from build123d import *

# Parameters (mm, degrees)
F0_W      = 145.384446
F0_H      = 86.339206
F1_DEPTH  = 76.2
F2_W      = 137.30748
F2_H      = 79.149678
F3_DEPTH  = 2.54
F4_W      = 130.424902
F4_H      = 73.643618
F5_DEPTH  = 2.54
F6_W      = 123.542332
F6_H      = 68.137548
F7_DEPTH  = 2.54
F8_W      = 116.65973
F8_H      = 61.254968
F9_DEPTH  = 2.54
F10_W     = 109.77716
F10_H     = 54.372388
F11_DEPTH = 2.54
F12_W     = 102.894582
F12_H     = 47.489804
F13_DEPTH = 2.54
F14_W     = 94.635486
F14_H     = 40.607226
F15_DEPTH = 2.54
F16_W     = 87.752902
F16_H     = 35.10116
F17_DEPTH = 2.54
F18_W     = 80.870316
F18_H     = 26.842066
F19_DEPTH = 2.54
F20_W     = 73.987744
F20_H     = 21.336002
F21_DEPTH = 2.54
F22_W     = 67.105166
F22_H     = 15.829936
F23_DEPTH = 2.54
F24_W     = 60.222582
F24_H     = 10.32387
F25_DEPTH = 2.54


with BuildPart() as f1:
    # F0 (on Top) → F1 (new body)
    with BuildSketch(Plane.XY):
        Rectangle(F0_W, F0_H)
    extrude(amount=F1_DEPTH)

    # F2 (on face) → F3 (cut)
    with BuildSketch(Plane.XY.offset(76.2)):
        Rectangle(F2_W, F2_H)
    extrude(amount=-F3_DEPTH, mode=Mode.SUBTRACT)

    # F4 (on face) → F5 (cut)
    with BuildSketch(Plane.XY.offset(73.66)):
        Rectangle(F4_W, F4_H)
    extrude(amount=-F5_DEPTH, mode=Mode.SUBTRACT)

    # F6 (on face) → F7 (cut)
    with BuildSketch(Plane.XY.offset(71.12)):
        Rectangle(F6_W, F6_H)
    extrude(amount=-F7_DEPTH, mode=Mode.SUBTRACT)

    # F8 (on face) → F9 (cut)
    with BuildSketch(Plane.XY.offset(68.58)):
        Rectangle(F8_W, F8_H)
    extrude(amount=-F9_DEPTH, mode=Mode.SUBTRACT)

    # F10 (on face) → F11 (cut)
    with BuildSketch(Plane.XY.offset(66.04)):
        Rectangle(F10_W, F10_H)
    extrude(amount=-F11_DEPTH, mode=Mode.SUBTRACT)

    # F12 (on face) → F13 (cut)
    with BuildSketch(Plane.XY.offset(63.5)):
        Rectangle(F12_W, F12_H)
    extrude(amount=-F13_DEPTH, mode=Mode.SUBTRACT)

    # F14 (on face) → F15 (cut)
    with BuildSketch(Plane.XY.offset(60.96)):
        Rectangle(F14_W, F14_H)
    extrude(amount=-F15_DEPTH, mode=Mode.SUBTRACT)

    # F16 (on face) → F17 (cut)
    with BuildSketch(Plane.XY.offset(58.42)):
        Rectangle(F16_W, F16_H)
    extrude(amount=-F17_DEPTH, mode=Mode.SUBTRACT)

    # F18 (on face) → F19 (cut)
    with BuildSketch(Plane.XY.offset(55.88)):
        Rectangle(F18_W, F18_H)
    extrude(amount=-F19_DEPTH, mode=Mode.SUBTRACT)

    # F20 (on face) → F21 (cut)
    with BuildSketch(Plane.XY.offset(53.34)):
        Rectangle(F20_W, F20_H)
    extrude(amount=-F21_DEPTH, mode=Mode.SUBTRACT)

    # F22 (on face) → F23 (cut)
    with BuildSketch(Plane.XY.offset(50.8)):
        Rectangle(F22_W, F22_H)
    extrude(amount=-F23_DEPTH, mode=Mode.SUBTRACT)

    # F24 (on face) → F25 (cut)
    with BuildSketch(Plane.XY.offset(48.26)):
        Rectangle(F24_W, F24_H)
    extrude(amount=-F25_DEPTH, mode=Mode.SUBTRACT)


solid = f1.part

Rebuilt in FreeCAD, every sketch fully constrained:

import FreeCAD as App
import Part
import Sketcher
from FreeCAD import Vector
Q = App.Units.Quantity


def add_polygon(sketch, points):
    """Adds a closed chain of lines whose ends are joined by coincident constraints."""
    first, n = sketch.GeometryCount, len(points)
    for a, b in zip(points, points[1:] + points[:1]):
        sketch.addGeometry(Part.LineSegment(App.Vector(*a, 0), App.Vector(*b, 0)), False)
    for i in range(n):
        sketch.addConstraint(Sketcher.Constraint("Coincident", first + i, 2, first + (i + 1) % n, 1))

doc = App.newDocument("Part")
body = doc.addObject("PartDesign::Body", "Body")

# Sketch on XY plane
sketch1 = doc.addObject("Sketcher::SketchObject", "Sketch")
body.addObject(sketch1)
sketch1.AttachmentSupport = (doc.XY_Plane, [""])
sketch1.MapMode = "FlatFace"
add_polygon(sketch1, [(-73, 43), (-73, -43), (73, -43), (73, 43)])  # lines 0-3
sketch1.addConstraint([
    Sketcher.Constraint("Vertical", 0),
    Sketcher.Constraint("Horizontal", 1),
    Sketcher.Constraint("Vertical", 2),
    Sketcher.Constraint("Horizontal", 3),
    Sketcher.Constraint("Symmetric", 0, 2, 2, 2, -1, 1),
    Sketcher.Constraint("DistanceX", 1, 1, 1, 2, Q("145.384446 mm")),
    Sketcher.Constraint("DistanceY", 0, 2, 0, 1, Q("86.339206 mm")),
])
pad1 = doc.addObject("PartDesign::Pad", "Pad")
body.addObject(pad1)
pad1.Profile = sketch1
pad1.Length = Q("3 in")

# Sketch on XY plane
sketch2 = doc.addObject("Sketcher::SketchObject", "Sketch001")
body.addObject(sketch2)
sketch2.AttachmentSupport = (doc.XY_Plane, [""])
sketch2.MapMode = "FlatFace"
sketch2.AttachmentOffset = App.Placement(Vector(0, 0, 3 * 25.4), App.Rotation())
add_polygon(sketch2, [(-69, 40), (-69, -40), (69, -40), (69, 40)])  # lines 0-3
sketch2.addConstraint([
    Sketcher.Constraint("Vertical", 0),
    Sketcher.Constraint("Horizontal", 1),
    Sketcher.Constraint("Vertical", 2),
    Sketcher.Constraint("Horizontal", 3),
    Sketcher.Constraint("Symmetric", 0, 2, 2, 2, -1, 1),
    Sketcher.Constraint("DistanceX", 1, 1, 1, 2, Q("137.30748 mm")),
    Sketcher.Constraint("DistanceY", 0, 2, 0, 1, Q("79.149678 mm")),
])
pocket1 = doc.addObject("PartDesign::Pocket", "Pocket")
body.addObject(pocket1)
pocket1.Profile = sketch2
pocket1.Length = Q("0.1 in")

# Sketch on XY plane
sketch3 = doc.addObject("Sketcher::SketchObject", "Sketch002")
body.addObject(sketch3)
sketch3.AttachmentSupport = (doc.XY_Plane, [""])
sketch3.MapMode = "FlatFace"
sketch3.AttachmentOffset = App.Placement(Vector(0, 0, 2.9 * 25.4), App.Rotation())
add_polygon(sketch3, [(-65, 37), (-65, -37), (65, -37), (65, 37)])  # lines 0-3
sketch3.addConstraint([
    Sketcher.Constraint("Vertical", 0),
    Sketcher.Constraint("Horizontal", 1),
    Sketcher.Constraint("Vertical", 2),
    Sketcher.Constraint("Horizontal", 3),
    Sketcher.Constraint("Symmetric", 0, 2, 2, 2, -1, 1),
    Sketcher.Constraint("DistanceX", 1, 1, 1, 2, Q("130.424902 mm")),
    Sketcher.Constraint("DistanceY", 0, 2, 0, 1, Q("73.643618 mm")),
])
pocket2 = doc.addObject("PartDesign::Pocket", "Pocket001")
body.addObject(pocket2)
pocket2.Profile = sketch3
pocket2.Length = Q("0.1 in")

# Sketch on XY plane
sketch4 = doc.addObject("Sketcher::SketchObject", "Sketch003")
body.addObject(sketch4)
sketch4.AttachmentSupport = (doc.XY_Plane, [""])
sketch4.MapMode = "FlatFace"
sketch4.AttachmentOffset = App.Placement(Vector(0, 0, 2.8 * 25.4), App.Rotation())
add_polygon(sketch4, [(-62, 34), (-62, -34), (62, -34), (62, 34)])  # lines 0-3
sketch4.addConstraint([
    Sketcher.Constraint("Vertical", 0),
    Sketcher.Constraint("Horizontal", 1),
    Sketcher.Constraint("Vertical", 2),
    Sketcher.Constraint("Horizontal", 3),
    Sketcher.Constraint("Symmetric", 0, 2, 2, 2, -1, 1),
    Sketcher.Constraint("DistanceX", 1, 1, 1, 2, Q("123.542332 mm")),
    Sketcher.Constraint("DistanceY", 0, 2, 0, 1, Q("68.137548 mm")),
])
pocket3 = doc.addObject("PartDesign::Pocket", "Pocket002")
body.addObject(pocket3)
pocket3.Profile = sketch4
pocket3.Length = Q("0.1 in")

# Sketch on XY plane
sketch5 = doc.addObject("Sketcher::SketchObject", "Sketch004")
body.addObject(sketch5)
sketch5.AttachmentSupport = (doc.XY_Plane, [""])
sketch5.MapMode = "FlatFace"
sketch5.AttachmentOffset = App.Placement(Vector(0, 0, 2.7 * 25.4), App.Rotation())
add_polygon(sketch5, [(-58, 31), (-58, -31), (58, -31), (58, 31)])  # lines 0-3
sketch5.addConstraint([
    Sketcher.Constraint("Vertical", 0),
    Sketcher.Constraint("Horizontal", 1),
    Sketcher.Constraint("Vertical", 2),
    Sketcher.Constraint("Horizontal", 3),
    Sketcher.Constraint("Symmetric", 0, 2, 2, 2, -1, 1),
    Sketcher.Constraint("DistanceX", 1, 1, 1, 2, Q("116.65973 mm")),
    Sketcher.Constraint("DistanceY", 0, 2, 0, 1, Q("61.254968 mm")),
])
pocket4 = doc.addObject("PartDesign::Pocket", "Pocket003")
body.addObject(pocket4)
pocket4.Profile = sketch5
pocket4.Length = Q("0.1 in")

# Sketch on XY plane
sketch6 = doc.addObject("Sketcher::SketchObject", "Sketch005")
body.addObject(sketch6)
sketch6.AttachmentSupport = (doc.XY_Plane, [""])
sketch6.MapMode = "FlatFace"
sketch6.AttachmentOffset = App.Placement(Vector(0, 0, 2.6 * 25.4), App.Rotation())
add_polygon(sketch6, [(-55, 27), (-55, -27), (55, -27), (55, 27)])  # lines 0-3
sketch6.addConstraint([
    Sketcher.Constraint("Vertical", 0),
    Sketcher.Constraint("Horizontal", 1),
    Sketcher.Constraint("Vertical", 2),
    Sketcher.Constraint("Horizontal", 3),
    Sketcher.Constraint("Symmetric", 0, 2, 2, 2, -1, 1),
    Sketcher.Constraint("DistanceX", 1, 1, 1, 2, Q("109.77716 mm")),
    Sketcher.Constraint("DistanceY", 0, 2, 0, 1, Q("54.372388 mm")),
])
pocket5 = doc.addObject("PartDesign::Pocket", "Pocket004")
body.addObject(pocket5)
pocket5.Profile = sketch6
pocket5.Length = Q("0.1 in")

# Sketch on XY plane
sketch7 = doc.addObject("Sketcher::SketchObject", "Sketch006")
body.addObject(sketch7)
sketch7.AttachmentSupport = (doc.XY_Plane, [""])
sketch7.MapMode = "FlatFace"
sketch7.AttachmentOffset = App.Placement(Vector(0, 0, 2.5 * 25.4), App.Rotation())
add_polygon(sketch7, [(-51, 24), (-51, -24), (51, -24), (51, 24)])  # lines 0-3
sketch7.addConstraint([
    Sketcher.Constraint("Vertical", 0),
    Sketcher.Constraint("Horizontal", 1),
    Sketcher.Constraint("Vertical", 2),
    Sketcher.Constraint("Horizontal", 3),
    Sketcher.Constraint("Symmetric", 0, 2, 2, 2, -1, 1),
    Sketcher.Constraint("DistanceX", 1, 1, 1, 2, Q("102.894582 mm")),
    Sketcher.Constraint("DistanceY", 0, 2, -1, 1, Q("23.744902 mm")),
])
pocket6 = doc.addObject("PartDesign::Pocket", "Pocket005")
body.addObject(pocket6)
pocket6.Profile = sketch7
pocket6.Length = Q("0.1 in")

# Sketch on XY plane
sketch8 = doc.addObject("Sketcher::SketchObject", "Sketch007")
body.addObject(sketch8)
sketch8.AttachmentSupport = (doc.XY_Plane, [""])
sketch8.MapMode = "FlatFace"
sketch8.AttachmentOffset = App.Placement(Vector(0, 0, 2.4 * 25.4), App.Rotation())
add_polygon(sketch8, [(-47, 20), (-47, -20), (47, -20), (47, 20)])  # lines 0-3
sketch8.addConstraint([
    Sketcher.Constraint("Vertical", 0),
    Sketcher.Constraint("Horizontal", 1),
    Sketcher.Constraint("Vertical", 2),
    Sketcher.Constraint("Horizontal", 3),
    Sketcher.Constraint("Symmetric", 0, 2, 2, 2, -1, 1),
    Sketcher.Constraint("DistanceX", 1, 1, 1, 2, Q("94.635486 mm")),
    Sketcher.Constraint("DistanceY", 0, 2, 0, 1, Q("40.607226 mm")),
])
pocket7 = doc.addObject("PartDesign::Pocket", "Pocket006")
body.addObject(pocket7)
pocket7.Profile = sketch8
pocket7.Length = Q("0.1 in")

# Sketch on XY plane
sketch9 = doc.addObject("Sketcher::SketchObject", "Sketch008")
body.addObject(sketch9)
sketch9.AttachmentSupport = (doc.XY_Plane, [""])
sketch9.MapMode = "FlatFace"
sketch9.AttachmentOffset = App.Placement(Vector(0, 0, 2.3 * 25.4), App.Rotation())
add_polygon(sketch9, [(-44, 18), (-44, -18), (44, -18), (44, 18)])  # lines 0-3
sketch9.addConstraint([
    Sketcher.Constraint("Vertical", 0),
    Sketcher.Constraint("Horizontal", 1),
    Sketcher.Constraint("Vertical", 2),
    Sketcher.Constraint("Horizontal", 3),
    Sketcher.Constraint("Symmetric", 0, 2, 2, 2, -1, 1),
    Sketcher.Constraint("DistanceY", 0, 2, 0, 1, Q("35.10116 mm")),
    Sketcher.Constraint("DistanceX", 1, 1, 1, 2, Q("87.752902 mm")),
])
pocket8 = doc.addObject("PartDesign::Pocket", "Pocket007")
body.addObject(pocket8)
pocket8.Profile = sketch9
pocket8.Length = Q("0.1 in")

# Sketch on XY plane
sketch10 = doc.addObject("Sketcher::SketchObject", "Sketch009")
body.addObject(sketch10)
sketch10.AttachmentSupport = (doc.XY_Plane, [""])
sketch10.MapMode = "FlatFace"
sketch10.AttachmentOffset = App.Placement(Vector(0, 0, 2.2 * 25.4), App.Rotation())
add_polygon(sketch10, [(-40, 13), (-40, -13), (40, -13), (40, 13)])  # lines 0-3
sketch10.addConstraint([
    Sketcher.Constraint("Vertical", 0),
    Sketcher.Constraint("Horizontal", 1),
    Sketcher.Constraint("Vertical", 2),
    Sketcher.Constraint("Horizontal", 3),
    Sketcher.Constraint("Symmetric", 0, 2, 2, 2, -1, 1),
    Sketcher.Constraint("DistanceX", 1, 1, 1, 2, Q("80.870316 mm")),
    Sketcher.Constraint("DistanceY", 0, 2, 0, 1, Q("26.842066 mm")),
])
pocket9 = doc.addObject("PartDesign::Pocket", "Pocket008")
body.addObject(pocket9)
pocket9.Profile = sketch10
pocket9.Length = Q("0.1 in")

# Sketch on XY plane
sketch11 = doc.addObject("Sketcher::SketchObject", "Sketch010")
body.addObject(sketch11)
sketch11.AttachmentSupport = (doc.XY_Plane, [""])
sketch11.MapMode = "FlatFace"
sketch11.AttachmentOffset = App.Placement(Vector(0, 0, 2.1 * 25.4), App.Rotation())
add_polygon(sketch11, [(-37, 11), (-37, -11), (37, -11), (37, 11)])  # lines 0-3
sketch11.addConstraint([
    Sketcher.Constraint("Vertical", 0),
    Sketcher.Constraint("Horizontal", 1),
    Sketcher.Constraint("Vertical", 2),
    Sketcher.Constraint("Horizontal", 3),
    Sketcher.Constraint("Symmetric", 0, 2, 2, 2, -1, 1),
    Sketcher.Constraint("DistanceY", 0, 2, 0, 1, Q("0.8400001 in")),
    Sketcher.Constraint("DistanceX", 1, 1, 1, 2, Q("73.987744 mm")),
])
pocket10 = doc.addObject("PartDesign::Pocket", "Pocket009")
body.addObject(pocket10)
pocket10.Profile = sketch11
pocket10.Length = Q("0.1 in")

# Sketch on XY plane
sketch12 = doc.addObject("Sketcher::SketchObject", "Sketch011")
body.addObject(sketch12)
sketch12.AttachmentSupport = (doc.XY_Plane, [""])
sketch12.MapMode = "FlatFace"
sketch12.AttachmentOffset = App.Placement(Vector(0, 0, 2 * 25.4), App.Rotation())
add_polygon(sketch12, [(-34, 8), (-34, -8), (34, -8), (34, 8)])  # lines 0-3
sketch12.addConstraint([
    Sketcher.Constraint("Vertical", 0),
    Sketcher.Constraint("Horizontal", 1),
    Sketcher.Constraint("Vertical", 2),
    Sketcher.Constraint("Horizontal", 3),
    Sketcher.Constraint("Symmetric", 0, 2, 2, 2, -1, 1),
    Sketcher.Constraint("DistanceX", 1, 1, 1, 2, Q("67.105166 mm")),
    Sketcher.Constraint("DistanceY", 0, 2, 0, 1, Q("15.829936 mm")),
])
pocket11 = doc.addObject("PartDesign::Pocket", "Pocket010")
body.addObject(pocket11)
pocket11.Profile = sketch12
pocket11.Length = Q("0.1 in")

# Sketch on XY plane
sketch13 = doc.addObject("Sketcher::SketchObject", "Sketch012")
body.addObject(sketch13)
sketch13.AttachmentSupport = (doc.XY_Plane, [""])
sketch13.MapMode = "FlatFace"
sketch13.AttachmentOffset = App.Placement(Vector(0, 0, 1.9 * 25.4), App.Rotation())
add_polygon(sketch13, [(-30, 5), (-30, -5), (30, -5), (30, 5)])  # lines 0-3
sketch13.addConstraint([
    Sketcher.Constraint("Vertical", 0),
    Sketcher.Constraint("Horizontal", 1),
    Sketcher.Constraint("Vertical", 2),
    Sketcher.Constraint("Horizontal", 3),
    Sketcher.Constraint("Symmetric", 0, 2, 2, 2, -1, 1),
    Sketcher.Constraint("DistanceY", 0, 2, 0, 1, Q("10.32387 mm")),
    Sketcher.Constraint("DistanceX", 1, 1, 1, 2, Q("60.222582 mm")),
])
pocket12 = doc.addObject("PartDesign::Pocket", "Pocket011")
body.addObject(pocket12)
pocket12.Profile = sketch13
pocket12.Length = Q("0.1 in")

doc.recompute()
